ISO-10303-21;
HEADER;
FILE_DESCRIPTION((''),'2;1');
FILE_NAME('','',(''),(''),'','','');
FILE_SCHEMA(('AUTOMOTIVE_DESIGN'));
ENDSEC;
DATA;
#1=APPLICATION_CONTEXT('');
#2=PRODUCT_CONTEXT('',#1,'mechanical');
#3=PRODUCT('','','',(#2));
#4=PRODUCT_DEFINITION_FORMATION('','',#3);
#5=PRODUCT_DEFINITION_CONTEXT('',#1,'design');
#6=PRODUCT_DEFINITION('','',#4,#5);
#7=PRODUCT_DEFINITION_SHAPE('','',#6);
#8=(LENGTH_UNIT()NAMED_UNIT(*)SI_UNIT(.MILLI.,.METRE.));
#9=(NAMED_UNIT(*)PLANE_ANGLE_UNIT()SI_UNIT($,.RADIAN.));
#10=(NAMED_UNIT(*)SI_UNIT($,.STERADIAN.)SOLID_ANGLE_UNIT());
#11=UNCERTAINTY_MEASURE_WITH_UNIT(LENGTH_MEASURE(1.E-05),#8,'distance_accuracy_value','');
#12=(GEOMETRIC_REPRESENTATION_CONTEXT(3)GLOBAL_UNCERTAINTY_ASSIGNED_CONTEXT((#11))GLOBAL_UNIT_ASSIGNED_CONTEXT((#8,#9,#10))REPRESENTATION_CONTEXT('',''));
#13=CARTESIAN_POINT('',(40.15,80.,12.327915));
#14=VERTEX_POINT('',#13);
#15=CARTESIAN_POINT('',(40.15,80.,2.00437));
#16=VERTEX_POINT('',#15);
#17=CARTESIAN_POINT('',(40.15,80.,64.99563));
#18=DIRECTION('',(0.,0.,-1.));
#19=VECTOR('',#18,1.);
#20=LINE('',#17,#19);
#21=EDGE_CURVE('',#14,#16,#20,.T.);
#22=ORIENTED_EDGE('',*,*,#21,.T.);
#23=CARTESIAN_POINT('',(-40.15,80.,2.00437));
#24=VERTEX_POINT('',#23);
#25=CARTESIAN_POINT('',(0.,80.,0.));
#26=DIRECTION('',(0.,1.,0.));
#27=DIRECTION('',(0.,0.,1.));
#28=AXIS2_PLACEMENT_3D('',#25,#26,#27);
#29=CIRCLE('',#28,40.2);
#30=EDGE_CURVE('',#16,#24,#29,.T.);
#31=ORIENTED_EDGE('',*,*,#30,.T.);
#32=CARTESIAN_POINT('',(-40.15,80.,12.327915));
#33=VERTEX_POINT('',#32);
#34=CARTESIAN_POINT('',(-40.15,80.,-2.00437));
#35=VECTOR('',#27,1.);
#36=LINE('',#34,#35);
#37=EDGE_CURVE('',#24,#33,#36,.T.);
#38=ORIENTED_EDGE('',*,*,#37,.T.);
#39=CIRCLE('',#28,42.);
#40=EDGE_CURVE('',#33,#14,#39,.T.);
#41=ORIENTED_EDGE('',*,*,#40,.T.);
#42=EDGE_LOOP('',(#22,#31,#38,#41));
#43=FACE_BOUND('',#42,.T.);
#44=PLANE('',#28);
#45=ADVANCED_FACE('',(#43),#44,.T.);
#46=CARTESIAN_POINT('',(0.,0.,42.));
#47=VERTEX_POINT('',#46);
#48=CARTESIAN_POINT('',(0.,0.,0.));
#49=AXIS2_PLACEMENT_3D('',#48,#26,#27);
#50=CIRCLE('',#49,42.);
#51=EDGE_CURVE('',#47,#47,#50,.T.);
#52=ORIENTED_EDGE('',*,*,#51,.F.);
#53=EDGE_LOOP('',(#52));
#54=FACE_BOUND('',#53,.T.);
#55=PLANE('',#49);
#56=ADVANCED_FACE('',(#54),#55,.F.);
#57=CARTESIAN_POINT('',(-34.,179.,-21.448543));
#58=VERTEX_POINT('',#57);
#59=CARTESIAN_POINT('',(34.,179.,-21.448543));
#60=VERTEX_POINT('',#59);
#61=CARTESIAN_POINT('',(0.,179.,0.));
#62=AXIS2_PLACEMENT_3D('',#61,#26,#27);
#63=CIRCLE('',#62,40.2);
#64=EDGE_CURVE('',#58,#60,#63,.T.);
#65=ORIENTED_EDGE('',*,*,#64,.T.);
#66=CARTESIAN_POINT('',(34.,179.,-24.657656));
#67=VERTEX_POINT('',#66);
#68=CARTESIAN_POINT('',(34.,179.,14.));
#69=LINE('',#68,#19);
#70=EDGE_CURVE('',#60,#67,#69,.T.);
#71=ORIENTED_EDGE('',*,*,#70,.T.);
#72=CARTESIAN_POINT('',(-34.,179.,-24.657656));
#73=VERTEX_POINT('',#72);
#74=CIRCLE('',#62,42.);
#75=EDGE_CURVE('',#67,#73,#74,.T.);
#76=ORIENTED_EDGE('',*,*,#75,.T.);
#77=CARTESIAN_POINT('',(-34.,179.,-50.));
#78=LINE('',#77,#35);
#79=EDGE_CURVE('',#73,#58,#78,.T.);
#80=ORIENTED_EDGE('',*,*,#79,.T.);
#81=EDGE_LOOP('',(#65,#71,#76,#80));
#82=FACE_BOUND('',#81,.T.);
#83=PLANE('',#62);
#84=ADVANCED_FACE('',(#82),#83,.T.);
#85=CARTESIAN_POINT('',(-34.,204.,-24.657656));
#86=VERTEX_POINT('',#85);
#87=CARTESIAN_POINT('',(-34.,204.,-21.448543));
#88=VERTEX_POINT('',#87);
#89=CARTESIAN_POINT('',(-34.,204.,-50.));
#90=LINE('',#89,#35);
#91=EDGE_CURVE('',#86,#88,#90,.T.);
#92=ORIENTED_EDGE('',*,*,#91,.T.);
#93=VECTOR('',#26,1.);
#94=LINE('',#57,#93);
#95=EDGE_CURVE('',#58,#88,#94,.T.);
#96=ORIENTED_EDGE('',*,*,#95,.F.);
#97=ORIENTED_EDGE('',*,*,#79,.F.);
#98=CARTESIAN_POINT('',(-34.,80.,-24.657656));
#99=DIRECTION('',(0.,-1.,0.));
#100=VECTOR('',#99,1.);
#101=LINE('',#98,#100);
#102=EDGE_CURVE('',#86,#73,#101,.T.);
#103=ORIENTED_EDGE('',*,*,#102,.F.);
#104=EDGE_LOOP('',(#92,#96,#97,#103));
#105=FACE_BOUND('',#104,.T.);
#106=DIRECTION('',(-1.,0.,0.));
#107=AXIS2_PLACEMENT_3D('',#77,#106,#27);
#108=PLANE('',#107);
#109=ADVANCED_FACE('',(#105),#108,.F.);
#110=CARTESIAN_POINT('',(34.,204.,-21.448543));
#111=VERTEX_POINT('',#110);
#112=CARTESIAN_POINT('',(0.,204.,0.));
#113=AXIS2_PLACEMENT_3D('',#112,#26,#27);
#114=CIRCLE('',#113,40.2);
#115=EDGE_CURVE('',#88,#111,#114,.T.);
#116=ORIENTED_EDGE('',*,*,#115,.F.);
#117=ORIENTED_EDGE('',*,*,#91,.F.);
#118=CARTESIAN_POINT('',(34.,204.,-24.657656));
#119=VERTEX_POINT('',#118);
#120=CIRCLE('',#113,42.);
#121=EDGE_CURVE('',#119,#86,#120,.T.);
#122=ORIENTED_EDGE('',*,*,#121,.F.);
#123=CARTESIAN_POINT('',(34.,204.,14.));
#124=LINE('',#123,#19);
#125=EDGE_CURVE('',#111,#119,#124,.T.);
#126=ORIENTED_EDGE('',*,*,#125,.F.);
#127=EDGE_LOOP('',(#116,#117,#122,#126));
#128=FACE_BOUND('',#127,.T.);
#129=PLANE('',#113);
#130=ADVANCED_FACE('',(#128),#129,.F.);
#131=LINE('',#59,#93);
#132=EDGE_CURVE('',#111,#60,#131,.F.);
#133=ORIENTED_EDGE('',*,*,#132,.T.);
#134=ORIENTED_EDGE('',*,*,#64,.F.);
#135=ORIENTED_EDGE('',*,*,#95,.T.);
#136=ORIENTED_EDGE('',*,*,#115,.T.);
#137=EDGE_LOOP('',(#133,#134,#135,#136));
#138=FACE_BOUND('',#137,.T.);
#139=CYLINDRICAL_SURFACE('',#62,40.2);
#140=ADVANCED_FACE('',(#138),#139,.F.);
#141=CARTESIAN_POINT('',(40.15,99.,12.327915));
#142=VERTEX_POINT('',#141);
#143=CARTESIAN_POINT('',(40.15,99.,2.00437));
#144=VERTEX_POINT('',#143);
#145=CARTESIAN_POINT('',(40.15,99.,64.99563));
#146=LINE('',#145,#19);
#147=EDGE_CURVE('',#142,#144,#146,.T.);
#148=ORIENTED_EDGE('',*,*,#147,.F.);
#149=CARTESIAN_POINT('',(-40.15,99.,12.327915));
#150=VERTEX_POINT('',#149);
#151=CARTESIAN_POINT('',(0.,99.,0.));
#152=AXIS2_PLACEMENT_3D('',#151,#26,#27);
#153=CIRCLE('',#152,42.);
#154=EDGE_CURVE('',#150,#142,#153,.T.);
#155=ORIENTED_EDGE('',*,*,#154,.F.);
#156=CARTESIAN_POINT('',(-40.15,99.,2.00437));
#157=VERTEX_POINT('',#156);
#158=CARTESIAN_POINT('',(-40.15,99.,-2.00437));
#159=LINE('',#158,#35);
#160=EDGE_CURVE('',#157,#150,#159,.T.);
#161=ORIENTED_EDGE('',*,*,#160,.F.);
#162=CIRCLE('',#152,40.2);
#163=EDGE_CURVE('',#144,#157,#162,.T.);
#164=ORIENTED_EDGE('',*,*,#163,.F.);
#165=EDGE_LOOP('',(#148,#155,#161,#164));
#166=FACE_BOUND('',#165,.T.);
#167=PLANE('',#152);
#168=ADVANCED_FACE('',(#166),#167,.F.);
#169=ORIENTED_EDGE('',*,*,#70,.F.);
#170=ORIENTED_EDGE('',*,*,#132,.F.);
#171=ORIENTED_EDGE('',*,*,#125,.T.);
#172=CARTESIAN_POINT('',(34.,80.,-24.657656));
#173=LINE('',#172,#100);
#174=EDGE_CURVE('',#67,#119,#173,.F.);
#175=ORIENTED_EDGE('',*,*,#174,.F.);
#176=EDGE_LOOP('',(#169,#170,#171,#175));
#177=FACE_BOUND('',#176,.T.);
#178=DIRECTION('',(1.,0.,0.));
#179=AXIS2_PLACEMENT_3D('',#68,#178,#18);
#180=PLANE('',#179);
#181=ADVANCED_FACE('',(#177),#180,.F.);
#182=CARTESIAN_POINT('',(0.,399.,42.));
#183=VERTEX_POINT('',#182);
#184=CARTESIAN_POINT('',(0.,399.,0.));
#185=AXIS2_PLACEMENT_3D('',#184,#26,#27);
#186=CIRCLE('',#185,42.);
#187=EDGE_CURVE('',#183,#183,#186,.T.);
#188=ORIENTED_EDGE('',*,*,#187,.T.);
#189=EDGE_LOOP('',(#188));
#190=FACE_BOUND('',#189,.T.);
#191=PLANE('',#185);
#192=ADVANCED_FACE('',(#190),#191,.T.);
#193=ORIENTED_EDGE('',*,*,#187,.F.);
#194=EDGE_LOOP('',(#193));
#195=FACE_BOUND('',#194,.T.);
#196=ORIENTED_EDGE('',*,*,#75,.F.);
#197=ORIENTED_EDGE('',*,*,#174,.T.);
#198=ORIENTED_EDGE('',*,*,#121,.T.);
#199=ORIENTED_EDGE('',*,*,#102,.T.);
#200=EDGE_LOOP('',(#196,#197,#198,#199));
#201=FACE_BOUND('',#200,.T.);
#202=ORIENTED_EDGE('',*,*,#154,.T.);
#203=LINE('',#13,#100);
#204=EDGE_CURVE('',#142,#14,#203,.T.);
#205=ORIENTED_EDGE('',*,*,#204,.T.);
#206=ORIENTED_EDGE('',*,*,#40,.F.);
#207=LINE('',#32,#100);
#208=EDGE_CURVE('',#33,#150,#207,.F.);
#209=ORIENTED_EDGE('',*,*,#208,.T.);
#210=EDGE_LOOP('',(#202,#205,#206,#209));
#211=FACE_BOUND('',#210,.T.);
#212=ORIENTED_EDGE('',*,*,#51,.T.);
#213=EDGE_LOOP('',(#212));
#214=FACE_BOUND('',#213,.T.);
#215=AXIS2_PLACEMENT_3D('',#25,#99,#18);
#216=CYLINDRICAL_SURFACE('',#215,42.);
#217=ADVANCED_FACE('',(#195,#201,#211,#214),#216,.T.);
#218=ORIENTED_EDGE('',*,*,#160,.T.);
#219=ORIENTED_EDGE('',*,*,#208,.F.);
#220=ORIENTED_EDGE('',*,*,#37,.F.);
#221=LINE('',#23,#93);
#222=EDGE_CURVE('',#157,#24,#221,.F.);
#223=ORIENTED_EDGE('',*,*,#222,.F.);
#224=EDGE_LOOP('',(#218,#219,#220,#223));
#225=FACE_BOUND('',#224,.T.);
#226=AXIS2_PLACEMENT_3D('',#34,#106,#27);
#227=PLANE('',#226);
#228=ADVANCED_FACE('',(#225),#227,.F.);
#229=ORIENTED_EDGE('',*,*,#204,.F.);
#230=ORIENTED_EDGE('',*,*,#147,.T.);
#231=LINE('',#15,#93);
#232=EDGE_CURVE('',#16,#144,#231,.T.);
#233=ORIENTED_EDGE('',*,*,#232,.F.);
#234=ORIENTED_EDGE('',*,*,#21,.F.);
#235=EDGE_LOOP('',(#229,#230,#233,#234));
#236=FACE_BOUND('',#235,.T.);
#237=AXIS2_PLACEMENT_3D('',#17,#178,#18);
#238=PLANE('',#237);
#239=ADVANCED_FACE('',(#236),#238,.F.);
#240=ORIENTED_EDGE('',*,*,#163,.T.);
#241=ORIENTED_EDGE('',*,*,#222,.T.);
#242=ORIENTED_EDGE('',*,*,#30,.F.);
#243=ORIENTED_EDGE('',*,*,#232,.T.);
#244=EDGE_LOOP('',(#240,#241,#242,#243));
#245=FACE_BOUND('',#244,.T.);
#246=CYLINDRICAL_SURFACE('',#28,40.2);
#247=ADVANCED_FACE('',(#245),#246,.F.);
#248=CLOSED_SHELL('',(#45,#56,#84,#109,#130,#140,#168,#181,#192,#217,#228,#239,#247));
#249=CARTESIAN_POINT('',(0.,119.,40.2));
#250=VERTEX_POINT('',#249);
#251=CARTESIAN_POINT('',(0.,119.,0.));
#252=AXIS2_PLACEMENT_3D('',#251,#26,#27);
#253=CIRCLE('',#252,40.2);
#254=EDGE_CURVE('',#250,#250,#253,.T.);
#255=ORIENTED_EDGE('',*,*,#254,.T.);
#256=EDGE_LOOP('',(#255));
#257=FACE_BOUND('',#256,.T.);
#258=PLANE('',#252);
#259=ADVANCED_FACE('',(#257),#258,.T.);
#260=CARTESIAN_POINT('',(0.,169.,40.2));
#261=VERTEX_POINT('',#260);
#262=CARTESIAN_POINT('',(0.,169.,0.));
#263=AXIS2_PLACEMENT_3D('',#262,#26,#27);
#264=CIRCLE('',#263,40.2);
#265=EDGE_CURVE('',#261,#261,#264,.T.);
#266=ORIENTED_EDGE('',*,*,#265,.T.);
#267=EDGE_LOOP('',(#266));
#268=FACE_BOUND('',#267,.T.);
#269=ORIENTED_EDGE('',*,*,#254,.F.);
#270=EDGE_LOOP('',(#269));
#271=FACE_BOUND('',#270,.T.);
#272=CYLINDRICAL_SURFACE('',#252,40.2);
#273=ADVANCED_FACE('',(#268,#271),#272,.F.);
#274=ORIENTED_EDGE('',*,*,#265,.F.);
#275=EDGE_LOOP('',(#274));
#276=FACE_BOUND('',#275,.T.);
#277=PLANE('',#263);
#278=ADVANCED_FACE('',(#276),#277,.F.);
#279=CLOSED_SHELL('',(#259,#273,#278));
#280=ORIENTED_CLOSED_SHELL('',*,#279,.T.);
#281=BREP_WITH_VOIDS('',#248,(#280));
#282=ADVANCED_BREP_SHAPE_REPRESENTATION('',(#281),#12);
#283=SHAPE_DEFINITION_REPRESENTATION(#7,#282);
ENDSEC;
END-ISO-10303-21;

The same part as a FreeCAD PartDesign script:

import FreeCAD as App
import Part
import Sketcher
from FreeCAD import Vector


def add_polygon(sketch, points):
    """Adds a closed chain of lines whose ends are joined by coincident constraints."""
    first, n = sketch.GeometryCount, len(points)
    for a, b in zip(points, points[1:] + points[:1]):
        sketch.addGeometry(Part.LineSegment(App.Vector(*a, 0), App.Vector(*b, 0)), False)
    for i in range(n):
        sketch.addConstraint(Sketcher.Constraint("Coincident", first + i, 2, first + (i + 1) % n, 1))

doc = App.newDocument("Part")
body = doc.addObject("PartDesign::Body", "Body")

sketch1 = body.newObject("Sketcher::SketchObject", "Sketch")
sketch1.AttachmentSupport = (doc.getObject("XZ_Plane"), [""])
sketch1.MapMode = "FlatFace"
sketch1.addGeometry(Part.Circle(Vector(0, 0, 0), Vector(0, 0, 1), 42), False)
sketch1.addConstraint(Sketcher.Constraint("Coincident", 0, 3, -1, 1))
sketch1.addConstraint(Sketcher.Constraint("Diameter", 0, 84.0))
pad1 = body.newObject("PartDesign::Pad", "Pad")
pad1.Profile = sketch1
pad1.Length = 80
pad1.Reversed = True

sketch2 = body.newObject("Sketcher::SketchObject", "Sketch001")
sketch2.AttachmentSupport = (doc.getObject("XZ_Plane"), [""])
sketch2.MapMode = "FlatFace"
sketch2.AttachmentOffset = App.Placement(Vector(0, 0, -80), App.Rotation())
sketch2.addGeometry(Part.Circle(Vector(0, 0, 0), Vector(0, 0, 1), 42), False)
sketch2.addConstraint(Sketcher.Constraint("Coincident", 0, 3, -1, 1))
sketch2.addConstraint(Sketcher.Constraint("Diameter", 0, 84.0))
pad2 = body.newObject("PartDesign::Pad", "Pad001")
pad2.Profile = sketch2
pad2.Length = 19
pad2.Reversed = True

sketch3 = body.newObject("Sketcher::SketchObject", "Sketch002")
sketch3.AttachmentSupport = (doc.getObject("XZ_Plane"), [""])
sketch3.MapMode = "FlatFace"
sketch3.AttachmentOffset = App.Placement(Vector(0, 0, -99), App.Rotation())
sketch3.addGeometry(Part.Circle(Vector(0, 0, 0), Vector(0, 0, 1), 40), False)
sketch3.addConstraint(Sketcher.Constraint("Coincident", 0, 3, -1, 1))
sketch3.addConstraint(Sketcher.Constraint("Diameter", 0, 80.4))
pocket1 = body.newObject("PartDesign::Pocket", "Pocket")
pocket1.Profile = sketch3
pocket1.Length = 19
pocket1.Reversed = True

sketch4 = body.newObject("Sketcher::SketchObject", "Sketch003")
sketch4.AttachmentSupport = (doc.getObject("XZ_Plane"), [""])
sketch4.MapMode = "FlatFace"
sketch4.AttachmentOffset = App.Placement(Vector(0, 0, -99), App.Rotation())
add_polygon(sketch4, [(-40, -2), (-40, 65), (40, 65), (40, -2)])
sketch4.addConstraint(Sketcher.Constraint("Vertical", 0))
sketch4.addConstraint(Sketcher.Constraint("Horizontal", 1))
sketch4.addConstraint(Sketcher.Constraint("Vertical", 2))
sketch4.addConstraint(Sketcher.Constraint("Horizontal", 3))
sketch4.addConstraint(Sketcher.Constraint("DistanceY", 0, 1, 0, 2, 67.0))
sketch4.addConstraint(Sketcher.Constraint("DistanceX", 1, 1, 1, 2, 80.3))
sketch4.addConstraint(Sketcher.Constraint("DistanceX", 0, 2, -1, 1, 40.15))
sketch4.addConstraint(Sketcher.Constraint("DistanceY", -1, 1, 0, 2, 64.99563))
pocket2 = body.newObject("PartDesign::Pocket", "Pocket001")
pocket2.Profile = sketch4
pocket2.Length = 19
pocket2.Reversed = True

sketch5 = body.newObject("Sketcher::SketchObject", "Sketch004")
sketch5.AttachmentSupport = (doc.getObject("XZ_Plane"), [""])
sketch5.MapMode = "FlatFace"
sketch5.AttachmentOffset = App.Placement(Vector(0, 0, -99), App.Rotation())
sketch5.addGeometry(Part.Circle(Vector(0, 0, 0), Vector(0, 0, 1), 42), False)
sketch5.addConstraint(Sketcher.Constraint("Coincident", 0, 3, -1, 1))
sketch5.addConstraint(Sketcher.Constraint("Diameter", 0, 84.0))
pad3 = body.newObject("PartDesign::Pad", "Pad002")
pad3.Profile = sketch5
pad3.Length = 20
pad3.Reversed = True

sketch6 = body.newObject("Sketcher::SketchObject", "Sketch005")
sketch6.AttachmentSupport = (doc.getObject("XZ_Plane"), [""])
sketch6.MapMode = "FlatFace"
sketch6.AttachmentOffset = App.Placement(Vector(0, 0, -119), App.Rotation())
sketch6.addGeometry(Part.Circle(Vector(0, 0, 0), Vector(0, 0, 1), 42), False)
sketch6.addConstraint(Sketcher.Constraint("Coincident", 0, 3, -1, 1))
sketch6.addConstraint(Sketcher.Constraint("Diameter", 0, 84.0))
pad4 = body.newObject("PartDesign::Pad", "Pad003")
pad4.Profile = sketch6
pad4.Length = 50
pad4.Reversed = True

sketch7 = body.newObject("Sketcher::SketchObject", "Sketch006")
sketch7.AttachmentSupport = (doc.getObject("XZ_Plane"), [""])
sketch7.MapMode = "FlatFace"
sketch7.AttachmentOffset = App.Placement(Vector(0, 0, -169), App.Rotation())
sketch7.addGeometry(Part.Circle(Vector(0, 0, 0), Vector(0, 0, 1), 40), False)
sketch7.addConstraint(Sketcher.Constraint("Coincident", 0, 3, -1, 1))
sketch7.addConstraint(Sketcher.Constraint("Diameter", 0, 80.4))
pocket3 = body.newObject("PartDesign::Pocket", "Pocket002")
pocket3.Profile = sketch7
pocket3.Length = 50
pocket3.Reversed = True

sketch8 = body.newObject("Sketcher::SketchObject", "Sketch007")
sketch8.AttachmentSupport = (doc.getObject("XZ_Plane"), [""])
sketch8.MapMode = "FlatFace"
sketch8.AttachmentOffset = App.Placement(Vector(0, 0, -169), App.Rotation())
sketch8.addGeometry(Part.Circle(Vector(0, 0, 0), Vector(0, 0, 1), 42), False)
sketch8.addConstraint(Sketcher.Constraint("Coincident", 0, 3, -1, 1))
sketch8.addConstraint(Sketcher.Constraint("Diameter", 0, 84.0))
pad5 = body.newObject("PartDesign::Pad", "Pad004")
pad5.Profile = sketch8
pad5.Length = 35
pad5.Reversed = True

sketch9 = body.newObject("Sketcher::SketchObject", "Sketch008")
sketch9.AttachmentSupport = (doc.getObject("XZ_Plane"), [""])
sketch9.MapMode = "FlatFace"
sketch9.AttachmentOffset = App.Placement(Vector(0, 0, -204), App.Rotation())
sketch9.addGeometry(Part.Circle(Vector(0, 0, 0), Vector(0, 0, 1), 40), False)
sketch9.addConstraint(Sketcher.Constraint("Coincident", 0, 3, -1, 1))
sketch9.addConstraint(Sketcher.Constraint("Diameter", 0, 80.4))
pocket4 = body.newObject("PartDesign::Pocket", "Pocket003")
pocket4.Profile = sketch9
pocket4.Length = 25
pocket4.Reversed = True

sketch10 = body.newObject("Sketcher::SketchObject", "Sketch009")
sketch10.AttachmentSupport = (doc.getObject("XZ_Plane"), [""])
sketch10.MapMode = "FlatFace"
sketch10.AttachmentOffset = App.Placement(Vector(0, 0, -204), App.Rotation())
add_polygon(sketch10, [(-34, -50), (-34, 14), (34, 14), (34, -50)])
sketch10.addConstraint(Sketcher.Constraint("Vertical", 0))
sketch10.addConstraint(Sketcher.Constraint("Horizontal", 1))
sketch10.addConstraint(Sketcher.Constraint("Vertical", 2))
sketch10.addConstraint(Sketcher.Constraint("Horizontal", 3))
sketch10.addConstraint(Sketcher.Constraint("DistanceX", 1, 1, 1, 2, 68.0))
sketch10.addConstraint(Sketcher.Constraint("DistanceY", 0, 1, 0, 2, 64.0))
sketch10.addConstraint(Sketcher.Constraint("DistanceX", 0, 2, -1, 1, 34.0))
sketch10.addConstraint(Sketcher.Constraint("DistanceY", -1, 1, 0, 2, 14.0))
pocket5 = body.newObject("PartDesign::Pocket", "Pocket004")
pocket5.Profile = sketch10
pocket5.Length = 25
pocket5.Reversed = True

sketch11 = body.newObject("Sketcher::SketchObject", "Sketch010")
sketch11.AttachmentSupport = (doc.getObject("XZ_Plane"), [""])
sketch11.MapMode = "FlatFace"
sketch11.AttachmentOffset = App.Placement(Vector(0, 0, -204), App.Rotation())
sketch11.addGeometry(Part.Circle(Vector(0, 0, 0), Vector(0, 0, 1), 42), False)
sketch11.addConstraint(Sketcher.Constraint("Coincident", 0, 3, -1, 1))
sketch11.addConstraint(Sketcher.Constraint("Diameter", 0, 84.0))
pad6 = body.newObject("PartDesign::Pad", "Pad005")
pad6.Profile = sketch11
pad6.Length = 20
pad6.Reversed = True

sketch12 = body.newObject("Sketcher::SketchObject", "Sketch011")
sketch12.AttachmentSupport = (doc.getObject("XZ_Plane"), [""])
sketch12.MapMode = "FlatFace"
sketch12.AttachmentOffset = App.Placement(Vector(0, 0, -224), App.Rotation())
sketch12.addGeometry(Part.Circle(Vector(0, 0, 0), Vector(0, 0, 1), 42), False)
sketch12.addConstraint(Sketcher.Constraint("Coincident", 0, 3, -1, 1))
sketch12.addConstraint(Sketcher.Constraint("Diameter", 0, 84.0))
pad7 = body.newObject("PartDesign::Pad", "Pad006")
pad7.Profile = sketch12
pad7.Length = 175
pad7.Reversed = True

doc.recompute()
